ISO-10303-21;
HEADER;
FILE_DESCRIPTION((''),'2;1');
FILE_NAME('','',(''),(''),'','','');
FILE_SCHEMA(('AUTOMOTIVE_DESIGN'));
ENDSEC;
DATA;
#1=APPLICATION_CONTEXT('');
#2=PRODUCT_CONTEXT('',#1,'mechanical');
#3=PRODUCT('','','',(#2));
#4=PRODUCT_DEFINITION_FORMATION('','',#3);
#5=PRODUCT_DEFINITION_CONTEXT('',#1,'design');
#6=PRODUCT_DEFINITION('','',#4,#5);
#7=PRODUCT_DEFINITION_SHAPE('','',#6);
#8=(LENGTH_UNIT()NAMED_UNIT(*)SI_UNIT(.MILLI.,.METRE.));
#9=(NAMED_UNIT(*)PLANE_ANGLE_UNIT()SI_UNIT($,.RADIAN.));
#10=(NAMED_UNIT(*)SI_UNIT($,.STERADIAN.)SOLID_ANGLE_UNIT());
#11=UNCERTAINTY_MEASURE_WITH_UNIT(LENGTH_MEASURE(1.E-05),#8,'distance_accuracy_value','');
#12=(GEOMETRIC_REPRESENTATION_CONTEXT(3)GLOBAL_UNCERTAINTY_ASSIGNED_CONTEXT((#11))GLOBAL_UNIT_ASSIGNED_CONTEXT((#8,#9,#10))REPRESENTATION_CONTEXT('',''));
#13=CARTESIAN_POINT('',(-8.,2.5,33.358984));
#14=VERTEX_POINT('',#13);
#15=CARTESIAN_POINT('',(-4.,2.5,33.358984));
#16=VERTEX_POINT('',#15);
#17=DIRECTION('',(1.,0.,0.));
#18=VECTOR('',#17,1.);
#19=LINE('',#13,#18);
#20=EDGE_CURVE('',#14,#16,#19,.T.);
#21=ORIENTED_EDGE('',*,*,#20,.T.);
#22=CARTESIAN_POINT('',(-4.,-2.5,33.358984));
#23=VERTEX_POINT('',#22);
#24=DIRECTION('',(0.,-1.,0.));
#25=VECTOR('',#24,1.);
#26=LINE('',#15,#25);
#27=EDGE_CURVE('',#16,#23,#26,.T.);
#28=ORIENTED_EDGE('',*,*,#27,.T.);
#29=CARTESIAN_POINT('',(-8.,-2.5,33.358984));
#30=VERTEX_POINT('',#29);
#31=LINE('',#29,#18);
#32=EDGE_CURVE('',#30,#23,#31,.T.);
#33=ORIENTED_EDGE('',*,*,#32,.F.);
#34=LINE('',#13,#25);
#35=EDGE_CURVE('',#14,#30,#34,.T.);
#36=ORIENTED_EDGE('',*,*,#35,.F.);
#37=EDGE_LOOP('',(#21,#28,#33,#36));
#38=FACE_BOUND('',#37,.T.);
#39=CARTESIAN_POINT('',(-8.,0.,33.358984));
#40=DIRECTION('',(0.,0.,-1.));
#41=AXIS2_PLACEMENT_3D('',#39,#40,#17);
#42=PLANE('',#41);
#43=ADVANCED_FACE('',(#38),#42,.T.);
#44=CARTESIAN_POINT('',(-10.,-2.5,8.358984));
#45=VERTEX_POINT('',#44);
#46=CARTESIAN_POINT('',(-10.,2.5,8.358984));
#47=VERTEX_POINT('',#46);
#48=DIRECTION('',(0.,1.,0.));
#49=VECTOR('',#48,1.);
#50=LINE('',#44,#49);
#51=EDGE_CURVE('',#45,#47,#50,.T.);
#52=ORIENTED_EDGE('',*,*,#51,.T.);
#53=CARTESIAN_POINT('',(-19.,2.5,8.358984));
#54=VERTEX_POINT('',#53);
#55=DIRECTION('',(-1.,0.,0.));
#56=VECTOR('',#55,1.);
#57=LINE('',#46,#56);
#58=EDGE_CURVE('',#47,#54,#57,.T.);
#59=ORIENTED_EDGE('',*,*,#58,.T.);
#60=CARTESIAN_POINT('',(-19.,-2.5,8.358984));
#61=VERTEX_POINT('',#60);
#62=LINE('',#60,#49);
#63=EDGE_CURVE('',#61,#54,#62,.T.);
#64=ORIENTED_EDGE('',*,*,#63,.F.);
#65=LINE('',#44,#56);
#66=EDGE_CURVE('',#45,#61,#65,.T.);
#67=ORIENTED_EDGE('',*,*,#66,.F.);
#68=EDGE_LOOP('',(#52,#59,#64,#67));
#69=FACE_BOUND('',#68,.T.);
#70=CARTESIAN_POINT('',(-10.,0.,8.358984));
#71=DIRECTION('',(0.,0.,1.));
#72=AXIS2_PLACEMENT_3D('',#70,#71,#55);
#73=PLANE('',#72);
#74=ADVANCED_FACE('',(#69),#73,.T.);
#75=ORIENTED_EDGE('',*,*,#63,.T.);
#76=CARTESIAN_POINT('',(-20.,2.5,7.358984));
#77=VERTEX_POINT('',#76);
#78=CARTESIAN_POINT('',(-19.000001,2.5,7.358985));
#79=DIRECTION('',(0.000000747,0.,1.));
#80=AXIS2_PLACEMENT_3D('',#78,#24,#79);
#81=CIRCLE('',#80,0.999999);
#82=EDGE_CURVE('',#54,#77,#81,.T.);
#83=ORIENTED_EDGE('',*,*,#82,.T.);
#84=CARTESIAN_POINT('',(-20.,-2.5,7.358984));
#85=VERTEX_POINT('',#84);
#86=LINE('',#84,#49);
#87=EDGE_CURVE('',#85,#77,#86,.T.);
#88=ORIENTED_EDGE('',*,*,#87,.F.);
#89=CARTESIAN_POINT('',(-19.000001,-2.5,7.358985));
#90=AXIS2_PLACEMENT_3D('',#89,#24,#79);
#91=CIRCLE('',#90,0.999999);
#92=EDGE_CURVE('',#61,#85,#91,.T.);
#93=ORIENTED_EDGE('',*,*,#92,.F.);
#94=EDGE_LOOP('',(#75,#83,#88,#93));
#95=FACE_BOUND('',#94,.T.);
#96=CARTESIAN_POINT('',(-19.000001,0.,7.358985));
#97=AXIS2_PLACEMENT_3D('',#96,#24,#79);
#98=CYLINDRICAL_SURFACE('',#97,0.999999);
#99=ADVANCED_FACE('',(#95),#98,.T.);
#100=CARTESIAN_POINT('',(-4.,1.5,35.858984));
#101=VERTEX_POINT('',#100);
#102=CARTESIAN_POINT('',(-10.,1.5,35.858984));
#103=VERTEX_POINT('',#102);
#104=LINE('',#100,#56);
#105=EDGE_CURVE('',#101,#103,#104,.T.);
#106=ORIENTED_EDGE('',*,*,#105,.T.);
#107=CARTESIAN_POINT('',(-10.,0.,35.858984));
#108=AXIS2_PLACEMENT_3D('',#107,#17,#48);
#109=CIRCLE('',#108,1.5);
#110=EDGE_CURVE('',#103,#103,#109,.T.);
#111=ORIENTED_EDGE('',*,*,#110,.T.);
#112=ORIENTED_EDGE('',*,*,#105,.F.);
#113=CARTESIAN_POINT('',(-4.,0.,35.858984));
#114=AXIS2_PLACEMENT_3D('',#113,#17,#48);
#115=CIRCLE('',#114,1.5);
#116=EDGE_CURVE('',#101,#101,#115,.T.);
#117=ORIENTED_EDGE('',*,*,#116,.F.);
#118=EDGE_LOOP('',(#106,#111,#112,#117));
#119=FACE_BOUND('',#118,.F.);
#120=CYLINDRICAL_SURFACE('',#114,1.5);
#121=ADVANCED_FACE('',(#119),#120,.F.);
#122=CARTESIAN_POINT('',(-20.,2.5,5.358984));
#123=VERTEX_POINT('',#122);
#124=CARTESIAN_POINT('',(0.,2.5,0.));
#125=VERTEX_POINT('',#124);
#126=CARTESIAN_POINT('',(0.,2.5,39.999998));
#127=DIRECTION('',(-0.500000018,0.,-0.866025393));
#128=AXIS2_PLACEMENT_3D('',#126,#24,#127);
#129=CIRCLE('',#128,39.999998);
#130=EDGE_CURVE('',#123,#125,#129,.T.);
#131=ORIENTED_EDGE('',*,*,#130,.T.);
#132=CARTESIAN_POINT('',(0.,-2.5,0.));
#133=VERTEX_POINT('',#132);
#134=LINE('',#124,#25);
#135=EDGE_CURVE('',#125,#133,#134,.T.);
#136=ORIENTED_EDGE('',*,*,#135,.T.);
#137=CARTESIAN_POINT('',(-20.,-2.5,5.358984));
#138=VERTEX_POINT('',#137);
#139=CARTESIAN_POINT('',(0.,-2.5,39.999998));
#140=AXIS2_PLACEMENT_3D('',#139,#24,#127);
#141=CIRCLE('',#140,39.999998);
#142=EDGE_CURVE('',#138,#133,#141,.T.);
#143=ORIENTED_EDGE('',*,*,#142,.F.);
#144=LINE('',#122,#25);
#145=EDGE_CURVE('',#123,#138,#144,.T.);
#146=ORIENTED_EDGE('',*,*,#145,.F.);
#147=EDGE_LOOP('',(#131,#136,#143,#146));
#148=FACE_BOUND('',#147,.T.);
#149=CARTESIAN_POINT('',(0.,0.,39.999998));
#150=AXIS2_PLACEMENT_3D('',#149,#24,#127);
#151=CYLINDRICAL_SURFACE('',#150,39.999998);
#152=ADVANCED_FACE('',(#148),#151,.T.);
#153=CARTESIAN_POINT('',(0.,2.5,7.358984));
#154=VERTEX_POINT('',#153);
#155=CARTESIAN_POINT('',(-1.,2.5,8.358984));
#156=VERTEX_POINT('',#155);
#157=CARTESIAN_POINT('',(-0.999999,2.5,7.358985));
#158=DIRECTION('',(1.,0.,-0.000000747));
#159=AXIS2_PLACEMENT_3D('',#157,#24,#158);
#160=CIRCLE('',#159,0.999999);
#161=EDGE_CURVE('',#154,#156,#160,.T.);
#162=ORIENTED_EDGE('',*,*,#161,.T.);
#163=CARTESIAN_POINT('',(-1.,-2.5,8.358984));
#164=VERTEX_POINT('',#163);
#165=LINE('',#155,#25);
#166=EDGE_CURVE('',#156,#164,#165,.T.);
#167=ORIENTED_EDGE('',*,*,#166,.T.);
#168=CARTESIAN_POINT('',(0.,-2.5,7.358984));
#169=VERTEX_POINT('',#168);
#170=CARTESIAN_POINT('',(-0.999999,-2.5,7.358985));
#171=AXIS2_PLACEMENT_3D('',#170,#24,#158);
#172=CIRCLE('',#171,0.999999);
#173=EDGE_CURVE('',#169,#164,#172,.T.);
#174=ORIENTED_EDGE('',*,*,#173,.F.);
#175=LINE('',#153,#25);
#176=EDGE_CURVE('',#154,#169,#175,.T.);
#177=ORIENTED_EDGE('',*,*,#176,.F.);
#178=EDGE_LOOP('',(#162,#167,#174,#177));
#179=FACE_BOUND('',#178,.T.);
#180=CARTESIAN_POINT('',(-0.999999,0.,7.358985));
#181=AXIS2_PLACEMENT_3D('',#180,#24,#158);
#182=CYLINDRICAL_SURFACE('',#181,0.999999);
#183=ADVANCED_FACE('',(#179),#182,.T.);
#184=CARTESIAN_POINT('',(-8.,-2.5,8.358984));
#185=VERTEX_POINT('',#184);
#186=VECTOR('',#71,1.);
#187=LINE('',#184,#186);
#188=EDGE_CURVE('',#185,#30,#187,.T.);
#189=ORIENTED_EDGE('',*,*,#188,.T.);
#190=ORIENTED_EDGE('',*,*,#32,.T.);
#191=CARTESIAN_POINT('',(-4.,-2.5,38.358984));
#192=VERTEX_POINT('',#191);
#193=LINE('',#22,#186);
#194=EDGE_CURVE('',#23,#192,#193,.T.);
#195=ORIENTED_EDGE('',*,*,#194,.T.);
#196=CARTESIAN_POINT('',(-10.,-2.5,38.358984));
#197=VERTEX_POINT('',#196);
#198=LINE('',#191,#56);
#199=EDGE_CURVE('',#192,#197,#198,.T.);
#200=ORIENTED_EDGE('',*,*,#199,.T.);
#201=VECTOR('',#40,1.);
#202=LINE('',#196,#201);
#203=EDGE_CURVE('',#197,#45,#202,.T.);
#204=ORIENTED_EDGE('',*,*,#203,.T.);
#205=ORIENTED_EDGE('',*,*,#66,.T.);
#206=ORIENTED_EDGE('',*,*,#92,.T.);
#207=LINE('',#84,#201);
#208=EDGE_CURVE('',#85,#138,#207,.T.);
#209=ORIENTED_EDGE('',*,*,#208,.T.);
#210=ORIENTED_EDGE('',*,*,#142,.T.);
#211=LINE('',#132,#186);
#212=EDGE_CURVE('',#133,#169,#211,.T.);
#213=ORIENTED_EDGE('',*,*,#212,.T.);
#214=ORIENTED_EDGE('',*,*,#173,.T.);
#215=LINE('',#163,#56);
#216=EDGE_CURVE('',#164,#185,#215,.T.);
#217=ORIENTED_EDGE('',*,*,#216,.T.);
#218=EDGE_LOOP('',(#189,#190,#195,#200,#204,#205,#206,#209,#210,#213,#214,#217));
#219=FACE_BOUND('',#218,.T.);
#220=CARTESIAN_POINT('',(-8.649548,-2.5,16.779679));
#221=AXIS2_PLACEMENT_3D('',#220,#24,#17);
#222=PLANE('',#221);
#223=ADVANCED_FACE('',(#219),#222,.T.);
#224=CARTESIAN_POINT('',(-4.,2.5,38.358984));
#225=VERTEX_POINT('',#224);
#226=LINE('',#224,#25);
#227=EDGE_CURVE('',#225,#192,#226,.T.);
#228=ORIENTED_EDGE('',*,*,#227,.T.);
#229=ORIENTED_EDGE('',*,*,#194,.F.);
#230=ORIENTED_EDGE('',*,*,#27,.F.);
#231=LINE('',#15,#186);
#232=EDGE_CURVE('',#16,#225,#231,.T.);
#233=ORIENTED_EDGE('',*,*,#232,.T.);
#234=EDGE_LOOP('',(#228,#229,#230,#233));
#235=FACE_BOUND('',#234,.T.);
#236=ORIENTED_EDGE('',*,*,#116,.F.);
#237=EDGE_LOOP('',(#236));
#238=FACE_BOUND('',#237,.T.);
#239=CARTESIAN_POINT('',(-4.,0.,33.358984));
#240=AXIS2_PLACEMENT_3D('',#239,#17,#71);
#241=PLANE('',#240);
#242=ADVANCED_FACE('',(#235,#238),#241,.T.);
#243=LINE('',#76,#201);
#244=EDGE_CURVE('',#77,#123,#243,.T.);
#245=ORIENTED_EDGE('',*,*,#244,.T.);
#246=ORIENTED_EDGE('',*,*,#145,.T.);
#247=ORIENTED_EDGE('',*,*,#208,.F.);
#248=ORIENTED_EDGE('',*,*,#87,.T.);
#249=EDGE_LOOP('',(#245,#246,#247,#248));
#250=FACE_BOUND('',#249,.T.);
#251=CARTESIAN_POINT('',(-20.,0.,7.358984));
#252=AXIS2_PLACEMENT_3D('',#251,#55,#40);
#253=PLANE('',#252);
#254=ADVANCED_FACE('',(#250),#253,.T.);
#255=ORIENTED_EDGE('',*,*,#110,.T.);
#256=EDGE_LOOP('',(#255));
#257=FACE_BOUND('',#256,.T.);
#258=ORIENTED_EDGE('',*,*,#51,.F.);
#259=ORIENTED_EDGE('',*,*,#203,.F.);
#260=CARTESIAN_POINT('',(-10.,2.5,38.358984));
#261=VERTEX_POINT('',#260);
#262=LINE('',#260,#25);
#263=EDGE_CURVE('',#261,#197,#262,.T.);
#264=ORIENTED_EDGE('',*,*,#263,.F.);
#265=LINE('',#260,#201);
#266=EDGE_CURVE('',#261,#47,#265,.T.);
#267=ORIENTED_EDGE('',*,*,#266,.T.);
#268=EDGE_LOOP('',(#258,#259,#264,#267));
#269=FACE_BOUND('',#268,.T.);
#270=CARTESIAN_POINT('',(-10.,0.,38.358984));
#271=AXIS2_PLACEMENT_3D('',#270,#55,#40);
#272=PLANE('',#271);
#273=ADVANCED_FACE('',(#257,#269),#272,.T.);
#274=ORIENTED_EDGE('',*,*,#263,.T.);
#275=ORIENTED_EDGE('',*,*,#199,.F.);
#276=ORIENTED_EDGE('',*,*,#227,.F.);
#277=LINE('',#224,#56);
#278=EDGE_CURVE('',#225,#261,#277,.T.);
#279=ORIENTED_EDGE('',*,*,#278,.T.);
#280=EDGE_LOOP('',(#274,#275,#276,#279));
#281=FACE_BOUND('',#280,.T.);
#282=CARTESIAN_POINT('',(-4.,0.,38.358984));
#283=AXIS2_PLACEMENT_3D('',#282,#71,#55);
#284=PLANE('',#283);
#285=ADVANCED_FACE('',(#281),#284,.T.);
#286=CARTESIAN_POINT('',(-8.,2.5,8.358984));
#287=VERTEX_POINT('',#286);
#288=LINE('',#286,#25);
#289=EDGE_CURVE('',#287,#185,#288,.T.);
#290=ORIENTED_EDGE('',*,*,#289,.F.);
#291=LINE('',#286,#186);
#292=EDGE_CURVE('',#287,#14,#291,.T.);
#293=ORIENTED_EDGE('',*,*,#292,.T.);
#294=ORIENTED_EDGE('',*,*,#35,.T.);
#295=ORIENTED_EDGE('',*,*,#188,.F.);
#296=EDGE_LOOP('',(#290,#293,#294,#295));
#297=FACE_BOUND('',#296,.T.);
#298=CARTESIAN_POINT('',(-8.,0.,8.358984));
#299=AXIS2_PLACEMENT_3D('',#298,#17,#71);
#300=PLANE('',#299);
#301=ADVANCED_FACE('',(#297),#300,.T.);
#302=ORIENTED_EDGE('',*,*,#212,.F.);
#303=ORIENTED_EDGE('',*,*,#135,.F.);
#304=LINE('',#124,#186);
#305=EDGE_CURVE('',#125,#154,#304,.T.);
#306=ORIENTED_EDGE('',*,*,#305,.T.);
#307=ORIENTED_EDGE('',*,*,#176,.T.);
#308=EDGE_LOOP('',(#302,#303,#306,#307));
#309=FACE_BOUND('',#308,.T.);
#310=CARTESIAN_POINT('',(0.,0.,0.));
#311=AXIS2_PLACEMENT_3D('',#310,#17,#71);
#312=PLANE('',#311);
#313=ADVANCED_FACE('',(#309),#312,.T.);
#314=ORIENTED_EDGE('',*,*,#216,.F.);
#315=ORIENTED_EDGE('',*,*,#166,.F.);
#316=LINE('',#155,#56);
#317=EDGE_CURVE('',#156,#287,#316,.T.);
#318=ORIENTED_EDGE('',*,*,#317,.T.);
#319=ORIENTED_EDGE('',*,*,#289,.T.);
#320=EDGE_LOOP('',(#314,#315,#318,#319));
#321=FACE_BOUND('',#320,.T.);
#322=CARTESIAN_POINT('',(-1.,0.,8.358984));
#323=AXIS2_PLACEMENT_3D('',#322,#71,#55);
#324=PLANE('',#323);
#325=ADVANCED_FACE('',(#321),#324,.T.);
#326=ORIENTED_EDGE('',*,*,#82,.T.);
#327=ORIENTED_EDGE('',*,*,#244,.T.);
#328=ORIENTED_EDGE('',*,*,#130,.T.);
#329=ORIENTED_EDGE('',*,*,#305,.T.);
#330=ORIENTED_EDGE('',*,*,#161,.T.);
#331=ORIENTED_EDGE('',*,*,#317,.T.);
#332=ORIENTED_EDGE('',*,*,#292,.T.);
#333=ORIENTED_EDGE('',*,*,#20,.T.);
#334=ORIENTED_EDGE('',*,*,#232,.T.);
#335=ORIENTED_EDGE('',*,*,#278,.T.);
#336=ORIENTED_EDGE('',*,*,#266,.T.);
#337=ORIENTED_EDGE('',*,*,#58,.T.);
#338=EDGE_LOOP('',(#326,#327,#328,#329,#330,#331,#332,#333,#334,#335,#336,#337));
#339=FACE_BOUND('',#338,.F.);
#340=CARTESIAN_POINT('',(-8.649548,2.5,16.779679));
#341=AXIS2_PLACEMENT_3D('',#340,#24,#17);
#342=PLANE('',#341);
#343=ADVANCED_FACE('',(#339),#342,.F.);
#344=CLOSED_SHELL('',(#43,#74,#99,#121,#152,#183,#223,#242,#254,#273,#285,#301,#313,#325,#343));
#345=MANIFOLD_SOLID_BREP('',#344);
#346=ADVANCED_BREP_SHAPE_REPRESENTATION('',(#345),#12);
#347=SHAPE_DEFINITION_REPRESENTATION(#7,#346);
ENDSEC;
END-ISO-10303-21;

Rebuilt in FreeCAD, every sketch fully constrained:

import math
import FreeCAD as App
import Part
import Sketcher
Q = App.Units.Quantity

doc = App.newDocument("Part")
body = doc.addObject("PartDesign::Body", "Body")

# Sketch on XZ plane
sketch1 = doc.addObject("Sketcher::SketchObject", "Sketch")
body.addObject(sketch1)
sketch1.AttachmentSupport = (doc.XZ_Plane, [""])
sketch1.MapMode = "FlatFace"
sketch1.addGeometry([
    Part.LineSegment(App.Vector(-20, 7.4, 0), App.Vector(-20, 5.4, 0)),  # 0
    Part.ArcOfCircle(Part.Circle(App.Vector(0, 40, 0), App.Vector(0, 0, 1), 40), math.radians(-120), math.radians(-90)),  # 1
    Part.LineSegment(App.Vector(0, 0, 0), App.Vector(0, 7.4, 0)),  # 2
    Part.ArcOfCircle(Part.Circle(App.Vector(-1, 7.4, 0), App.Vector(0, 0, 1), 1), math.radians(0), math.radians(90)),  # 3
    Part.LineSegment(App.Vector(-1, 8.4, 0), App.Vector(-8, 8.4, 0)),  # 4
    Part.LineSegment(App.Vector(-8, 8.4, 0), App.Vector(-8, 33.4, 0)),  # 5
    Part.LineSegment(App.Vector(-8, 33.4, 0), App.Vector(-4, 33.4, 0)),  # 6
    Part.LineSegment(App.Vector(-4, 33.4, 0), App.Vector(-4, 38.4, 0)),  # 7
    Part.LineSegment(App.Vector(-4, 38.4, 0), App.Vector(-10, 38.4, 0)),  # 8
    Part.LineSegment(App.Vector(-10, 38.4, 0), App.Vector(-10, 8.4, 0)),  # 9
    Part.LineSegment(App.Vector(-10, 8.4, 0), App.Vector(-19, 8.4, 0)),  # 10
    Part.ArcOfCircle(Part.Circle(App.Vector(-19, 7.4, 0), App.Vector(0, 0, 1), 1), math.radians(90), math.radians(180)),  # 11
], False)
sketch1.addConstraint([
    Sketcher.Constraint("Coincident", 0, 2, 1, 1),
    Sketcher.Constraint("Coincident", 1, 2, 2, 1),
    Sketcher.Constraint("Tangent", 2, 2, 3, 1),
    Sketcher.Constraint("Tangent", 3, 2, 4, 1),
    Sketcher.Constraint("Coincident", 4, 2, 5, 1),
    Sketcher.Constraint("Coincident", 5, 2, 6, 1),
    Sketcher.Constraint("Coincident", 6, 2, 7, 1),
    Sketcher.Constraint("Coincident", 7, 2, 8, 1),
    Sketcher.Constraint("Coincident", 8, 2, 9, 1),
    Sketcher.Constraint("Coincident", 9, 2, 10, 1),
    Sketcher.Constraint("Tangent", 10, 2, 11, 1),
    Sketcher.Constraint("Tangent", 11, 2, 0, 1),
    Sketcher.Constraint("Vertical", 0),
    Sketcher.Constraint("Vertical", 2),
    Sketcher.Constraint("Horizontal", 4),
    Sketcher.Constraint("Vertical", 5),
    Sketcher.Constraint("Horizontal", 6),
    Sketcher.Constraint("Vertical", 7),
    Sketcher.Constraint("Horizontal", 8),
    Sketcher.Constraint("Vertical", 9),
    Sketcher.Constraint("Horizontal", 10),
    Sketcher.Constraint("Coincident", 1, 2, -1, 1),
    Sketcher.Constraint("Equal", 3, 11),
    Sketcher.Constraint("PointOnObject", 1, 3, -2),
    Sketcher.Constraint("Horizontal", 3, 3, 11, 3),
    Sketcher.Constraint("Radius", 1, Q("39.999998 mm")),
    Sketcher.Constraint("Radius", 3, Q("0.999999 mm")),
    Sketcher.Constraint("DistanceX", 4, 2, 4, 1, Q("7 mm")),
    Sketcher.Constraint("DistanceX", 6, 1, 6, 2, Q("4 mm")),
    Sketcher.Constraint("DistanceX", 8, 2, 8, 1, Q("6 mm")),
    Sketcher.Constraint("DistanceX", 10, 2, 10, 1, Q("9 mm")),
    Sketcher.Constraint("DistanceY", 0, 2, 0, 1, Q("2 mm")),
    Sketcher.Constraint("DistanceY", 5, 1, 5, 2, Q("25 mm")),
    Sketcher.Constraint("DistanceY", 7, 1, 7, 2, Q("5 mm")),
])
pad1 = doc.addObject("PartDesign::Pad", "Pad")
body.addObject(pad1)
pad1.Profile = sketch1
pad1.Length = 5
pad1.Midplane = True

# Sketch on YZ plane
sketch2 = doc.addObject("Sketcher::SketchObject", "Sketch001")
body.addObject(sketch2)
sketch2.AttachmentSupport = (doc.YZ_Plane, [""])
sketch2.MapMode = "FlatFace"
sketch2.AttachmentOffset = App.Placement(App.Vector(0, 0, -4), App.Rotation())
sketch2.addGeometry(Part.Circle(App.Vector(0, 35.9, 0), App.Vector(0, 0, 1), 1.5), False)
sketch2.addConstraint([
    Sketcher.Constraint("PointOnObject", 0, 3, -2),
    Sketcher.Constraint("Diameter", 0, Q("3 mm")),
    Sketcher.Constraint("DistanceY", -1, 1, 0, 3, Q("35.858984 mm")),
])
pocket1 = doc.addObject("PartDesign::Pocket", "Pocket")
body.addObject(pocket1)
pocket1.Profile = sketch2
pocket1.Type = "ThroughAll"

doc.recompute()
